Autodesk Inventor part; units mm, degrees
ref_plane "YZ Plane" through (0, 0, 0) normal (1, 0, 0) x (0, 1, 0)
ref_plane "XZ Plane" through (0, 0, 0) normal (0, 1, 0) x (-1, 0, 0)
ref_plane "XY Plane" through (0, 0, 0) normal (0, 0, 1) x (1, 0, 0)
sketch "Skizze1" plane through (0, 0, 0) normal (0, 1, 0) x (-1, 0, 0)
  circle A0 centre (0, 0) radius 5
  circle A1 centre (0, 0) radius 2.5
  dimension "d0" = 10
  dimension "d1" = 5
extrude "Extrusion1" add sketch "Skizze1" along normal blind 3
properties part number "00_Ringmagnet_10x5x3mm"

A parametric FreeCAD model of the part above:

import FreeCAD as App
import Part
import Sketcher
from FreeCAD import Vector
Q = App.Units.Quantity

doc = App.newDocument("Part")
params = doc.addObject("Spreadsheet::Sheet", "Params")
for row, (alias, value) in enumerate([
    ("sketch1_diameter", "10 mm"),
    ("sketch1_diameter2", "5 mm"),
    ("pad1_length", "3 mm"),
], start=1):
    params.set(f"A{row}", alias)
    params.set(f"B{row}", "=" + value)
    params.setAlias(f"B{row}", alias)

body = doc.addObject("PartDesign::Body", "Body")

# Sketch on XZ plane
sketch1 = doc.addObject("Sketcher::SketchObject", "Sketch")
body.addObject(sketch1)
sketch1.AttachmentSupport = (doc.XZ_Plane, [""])
sketch1.MapMode = "FlatFace"
sketch1.addGeometry(Part.Circle(Vector(0, 0, 0), Vector(0, 0, 1), 5), False)
sketch1.addGeometry(Part.Circle(Vector(0, 0, 0), Vector(0, 0, 1), 2.5), False)
sketch1.addConstraint(Sketcher.Constraint("Coincident", 0, 3, -1, 1))
sketch1.addConstraint(Sketcher.Constraint("Coincident", 1, 3, -1, 1))
sketch1.addConstraint(Sketcher.Constraint("Diameter", 0, Q("10 mm")))
sketch1.addConstraint(Sketcher.Constraint("Diameter", 1, Q("5 mm")))
sketch1.setExpression("Constraints[2]", "Params.sketch1_diameter")
sketch1.setExpression("Constraints[3]", "Params.sketch1_diameter2")
pad1 = doc.addObject("PartDesign::Pad", "Pad")
body.addObject(pad1)
pad1.Profile = sketch1
pad1.setExpression("Length", "Params.pad1_length")
pad1.Reversed = True

doc.recompute()
